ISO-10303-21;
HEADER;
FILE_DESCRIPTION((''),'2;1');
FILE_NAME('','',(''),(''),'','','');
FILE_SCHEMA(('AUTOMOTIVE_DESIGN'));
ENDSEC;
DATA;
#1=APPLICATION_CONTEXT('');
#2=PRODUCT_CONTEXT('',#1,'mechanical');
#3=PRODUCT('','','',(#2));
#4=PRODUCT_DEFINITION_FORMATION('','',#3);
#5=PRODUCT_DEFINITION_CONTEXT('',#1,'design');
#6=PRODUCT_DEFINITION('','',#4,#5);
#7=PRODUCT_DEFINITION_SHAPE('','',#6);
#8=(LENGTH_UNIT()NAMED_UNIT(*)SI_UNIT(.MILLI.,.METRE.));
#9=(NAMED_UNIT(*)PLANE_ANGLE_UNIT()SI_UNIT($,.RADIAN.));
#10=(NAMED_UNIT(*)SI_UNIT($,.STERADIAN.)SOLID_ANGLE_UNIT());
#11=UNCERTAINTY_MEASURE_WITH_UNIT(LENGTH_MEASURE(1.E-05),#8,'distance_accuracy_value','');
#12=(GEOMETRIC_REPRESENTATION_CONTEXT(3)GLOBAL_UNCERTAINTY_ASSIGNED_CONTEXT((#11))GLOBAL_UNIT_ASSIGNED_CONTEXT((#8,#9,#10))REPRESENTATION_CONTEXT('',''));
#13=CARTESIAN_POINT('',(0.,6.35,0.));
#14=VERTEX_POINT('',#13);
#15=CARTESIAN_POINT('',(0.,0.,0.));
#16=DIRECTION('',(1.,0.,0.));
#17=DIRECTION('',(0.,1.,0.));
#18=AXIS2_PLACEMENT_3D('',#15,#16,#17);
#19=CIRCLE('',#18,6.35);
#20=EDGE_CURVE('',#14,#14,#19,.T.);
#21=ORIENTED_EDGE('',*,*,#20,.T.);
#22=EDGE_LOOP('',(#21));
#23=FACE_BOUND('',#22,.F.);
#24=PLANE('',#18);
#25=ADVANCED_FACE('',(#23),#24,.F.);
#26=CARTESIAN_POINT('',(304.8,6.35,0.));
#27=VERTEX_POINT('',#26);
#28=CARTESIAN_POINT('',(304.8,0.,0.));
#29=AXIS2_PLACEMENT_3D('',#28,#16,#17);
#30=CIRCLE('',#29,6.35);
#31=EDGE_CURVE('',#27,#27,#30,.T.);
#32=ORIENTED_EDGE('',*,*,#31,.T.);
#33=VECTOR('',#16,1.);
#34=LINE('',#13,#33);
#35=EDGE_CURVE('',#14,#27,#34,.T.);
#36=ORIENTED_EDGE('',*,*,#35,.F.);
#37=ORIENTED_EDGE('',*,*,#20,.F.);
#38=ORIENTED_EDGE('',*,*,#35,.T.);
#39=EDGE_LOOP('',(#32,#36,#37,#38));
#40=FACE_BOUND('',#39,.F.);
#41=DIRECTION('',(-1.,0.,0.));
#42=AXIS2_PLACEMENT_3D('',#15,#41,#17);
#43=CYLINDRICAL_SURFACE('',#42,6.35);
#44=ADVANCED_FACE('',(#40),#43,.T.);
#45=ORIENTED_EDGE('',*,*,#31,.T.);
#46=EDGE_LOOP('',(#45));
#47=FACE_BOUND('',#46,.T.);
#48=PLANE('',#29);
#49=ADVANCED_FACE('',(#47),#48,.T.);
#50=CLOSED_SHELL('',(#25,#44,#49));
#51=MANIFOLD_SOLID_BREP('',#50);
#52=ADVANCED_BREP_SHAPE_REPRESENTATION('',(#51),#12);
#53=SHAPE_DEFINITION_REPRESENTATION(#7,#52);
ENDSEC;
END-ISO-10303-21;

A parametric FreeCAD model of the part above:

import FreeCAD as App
import Part
import Sketcher

V = App.Vector
Q = App.Units.Quantity

doc = App.newDocument("Part")
body = doc.addObject("PartDesign::Body", "Body")

# Sketch on YZ plane
sketch1 = doc.addObject("Sketcher::SketchObject", "Sketch")
body.addObject(sketch1)
sketch1.AttachmentSupport = (doc.YZ_Plane, [""])
sketch1.MapMode = "FlatFace"
sketch1.addGeometry(Part.Circle(V(0, 0, 0), V(0, 0, 1), 6), False)
sketch1.addConstraint([
    Sketcher.Constraint("Coincident", 0, 3, -1, 1),
    Sketcher.Constraint("Diameter", 0, Q("0.5 in")),
])
pad1 = doc.addObject("PartDesign::Pad", "Pad")
body.addObject(pad1)
pad1.Profile = sketch1
pad1.Length = Q("12 in")

doc.recompute()
